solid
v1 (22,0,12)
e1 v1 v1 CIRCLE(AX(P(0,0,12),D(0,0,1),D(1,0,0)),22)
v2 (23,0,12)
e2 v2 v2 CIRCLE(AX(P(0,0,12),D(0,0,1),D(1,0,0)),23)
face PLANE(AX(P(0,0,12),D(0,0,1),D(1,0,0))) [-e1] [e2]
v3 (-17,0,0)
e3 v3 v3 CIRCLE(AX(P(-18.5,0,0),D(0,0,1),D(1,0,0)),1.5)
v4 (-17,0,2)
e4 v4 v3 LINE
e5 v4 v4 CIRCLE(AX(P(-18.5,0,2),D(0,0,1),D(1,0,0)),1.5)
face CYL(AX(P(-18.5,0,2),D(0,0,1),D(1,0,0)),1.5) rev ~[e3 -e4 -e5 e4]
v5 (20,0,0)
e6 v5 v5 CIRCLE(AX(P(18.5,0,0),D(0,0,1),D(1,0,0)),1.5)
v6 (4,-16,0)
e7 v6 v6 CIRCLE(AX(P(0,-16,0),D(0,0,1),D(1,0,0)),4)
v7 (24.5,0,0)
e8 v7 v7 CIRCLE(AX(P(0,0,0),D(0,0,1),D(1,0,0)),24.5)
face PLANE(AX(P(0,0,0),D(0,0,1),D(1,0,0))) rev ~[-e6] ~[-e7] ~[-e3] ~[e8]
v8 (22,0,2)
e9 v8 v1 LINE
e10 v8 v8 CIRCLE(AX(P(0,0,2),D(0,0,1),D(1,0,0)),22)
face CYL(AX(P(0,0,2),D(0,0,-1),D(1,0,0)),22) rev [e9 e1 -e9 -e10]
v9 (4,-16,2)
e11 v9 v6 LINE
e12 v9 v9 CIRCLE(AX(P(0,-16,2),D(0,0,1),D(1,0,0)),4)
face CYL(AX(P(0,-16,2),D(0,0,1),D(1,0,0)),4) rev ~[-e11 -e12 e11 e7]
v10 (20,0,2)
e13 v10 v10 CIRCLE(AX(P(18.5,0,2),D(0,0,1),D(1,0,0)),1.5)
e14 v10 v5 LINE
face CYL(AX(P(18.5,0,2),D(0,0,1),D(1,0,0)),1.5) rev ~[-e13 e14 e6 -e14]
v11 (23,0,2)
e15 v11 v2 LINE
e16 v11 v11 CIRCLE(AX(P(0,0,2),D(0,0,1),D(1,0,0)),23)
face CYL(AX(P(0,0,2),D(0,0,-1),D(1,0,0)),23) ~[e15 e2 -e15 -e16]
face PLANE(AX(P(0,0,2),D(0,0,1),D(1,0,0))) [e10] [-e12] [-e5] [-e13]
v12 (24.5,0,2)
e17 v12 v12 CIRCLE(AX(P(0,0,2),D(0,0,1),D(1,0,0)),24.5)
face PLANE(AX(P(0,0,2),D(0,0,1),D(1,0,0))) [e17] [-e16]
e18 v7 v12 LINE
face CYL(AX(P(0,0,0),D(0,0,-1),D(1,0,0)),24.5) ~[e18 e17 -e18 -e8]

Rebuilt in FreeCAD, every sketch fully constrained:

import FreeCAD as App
import Part
import Sketcher

doc = App.newDocument("Part")
body = doc.addObject("PartDesign::Body", "Body")

sketch1 = body.newObject("Sketcher::SketchObject", "Sketch")
sketch1.AttachmentSupport = (doc.getObject("XY_Plane"), [""])
sketch1.MapMode = "FlatFace"
sketch1.addGeometry(Part.Circle(App.Vector(0, 0, 0), App.Vector(0, 0, 1), 24), False)
sketch1.addConstraint([
    Sketcher.Constraint("Coincident", 0, 3, -1, 1),
    Sketcher.Constraint("Diameter", 0, 49.0),
])
pad1 = body.newObject("PartDesign::Pad", "Pad")
pad1.Profile = sketch1
pad1.Length = 2

sketch2 = body.newObject("Sketcher::SketchObject", "Sketch001")
sketch2.AttachmentSupport = (doc.getObject("XY_Plane"), [""])
sketch2.MapMode = "FlatFace"
sketch2.AttachmentOffset = App.Placement(App.Vector(0, 0, 2), App.Rotation())
sketch2.addGeometry([
    Part.Circle(App.Vector(0, 0, 0), App.Vector(0, 0, 1), 23),
    Part.Circle(App.Vector(0, 0, 0), App.Vector(0, 0, 1), 22),
], False)
sketch2.addConstraint([
    Sketcher.Constraint("Coincident", 0, 3, -1, 1),
    Sketcher.Constraint("Coincident", 1, 3, -1, 1),
    Sketcher.Constraint("Diameter", 0, 46.0),
    Sketcher.Constraint("Diameter", 1, 44.0),
])
pad2 = body.newObject("PartDesign::Pad", "Pad001")
pad2.Profile = sketch2
pad2.Length = 10

sketch3 = body.newObject("Sketcher::SketchObject", "Sketch002")
sketch3.AttachmentSupport = (doc.getObject("XY_Plane"), [""])
sketch3.MapMode = "FlatFace"
sketch3.AttachmentOffset = App.Placement(App.Vector(0, 0, 2), App.Rotation())
sketch3.addGeometry([
    Part.Circle(App.Vector(-18.5, 0, 0), App.Vector(0, 0, 1), 1.5),
    Part.Circle(App.Vector(18.5, 0, 0), App.Vector(0, 0, 1), 1.5),
    Part.Circle(App.Vector(0, -16, 0), App.Vector(0, 0, 1), 4),
], False)
sketch3.addConstraint([
    Sketcher.Constraint("Equal", 0, 1),
    Sketcher.Constraint("Symmetric", 0, 3, 1, 3, -1, 1),
    Sketcher.Constraint("PointOnObject", 0, 3, -1),
    Sketcher.Constraint("PointOnObject", 2, 3, -2),
    Sketcher.Constraint("Diameter", 0, 3.0),
    Sketcher.Constraint("Diameter", 2, 8.0),
    Sketcher.Constraint("DistanceY", 2, 3, -1, 1, 16.0),
    Sketcher.Constraint("DistanceX", 0, 3, 1, 3, 37.0),
])
pocket1 = body.newObject("PartDesign::Pocket", "Pocket")
pocket1.Profile = sketch3
pocket1.Length = 10

doc.recompute()
